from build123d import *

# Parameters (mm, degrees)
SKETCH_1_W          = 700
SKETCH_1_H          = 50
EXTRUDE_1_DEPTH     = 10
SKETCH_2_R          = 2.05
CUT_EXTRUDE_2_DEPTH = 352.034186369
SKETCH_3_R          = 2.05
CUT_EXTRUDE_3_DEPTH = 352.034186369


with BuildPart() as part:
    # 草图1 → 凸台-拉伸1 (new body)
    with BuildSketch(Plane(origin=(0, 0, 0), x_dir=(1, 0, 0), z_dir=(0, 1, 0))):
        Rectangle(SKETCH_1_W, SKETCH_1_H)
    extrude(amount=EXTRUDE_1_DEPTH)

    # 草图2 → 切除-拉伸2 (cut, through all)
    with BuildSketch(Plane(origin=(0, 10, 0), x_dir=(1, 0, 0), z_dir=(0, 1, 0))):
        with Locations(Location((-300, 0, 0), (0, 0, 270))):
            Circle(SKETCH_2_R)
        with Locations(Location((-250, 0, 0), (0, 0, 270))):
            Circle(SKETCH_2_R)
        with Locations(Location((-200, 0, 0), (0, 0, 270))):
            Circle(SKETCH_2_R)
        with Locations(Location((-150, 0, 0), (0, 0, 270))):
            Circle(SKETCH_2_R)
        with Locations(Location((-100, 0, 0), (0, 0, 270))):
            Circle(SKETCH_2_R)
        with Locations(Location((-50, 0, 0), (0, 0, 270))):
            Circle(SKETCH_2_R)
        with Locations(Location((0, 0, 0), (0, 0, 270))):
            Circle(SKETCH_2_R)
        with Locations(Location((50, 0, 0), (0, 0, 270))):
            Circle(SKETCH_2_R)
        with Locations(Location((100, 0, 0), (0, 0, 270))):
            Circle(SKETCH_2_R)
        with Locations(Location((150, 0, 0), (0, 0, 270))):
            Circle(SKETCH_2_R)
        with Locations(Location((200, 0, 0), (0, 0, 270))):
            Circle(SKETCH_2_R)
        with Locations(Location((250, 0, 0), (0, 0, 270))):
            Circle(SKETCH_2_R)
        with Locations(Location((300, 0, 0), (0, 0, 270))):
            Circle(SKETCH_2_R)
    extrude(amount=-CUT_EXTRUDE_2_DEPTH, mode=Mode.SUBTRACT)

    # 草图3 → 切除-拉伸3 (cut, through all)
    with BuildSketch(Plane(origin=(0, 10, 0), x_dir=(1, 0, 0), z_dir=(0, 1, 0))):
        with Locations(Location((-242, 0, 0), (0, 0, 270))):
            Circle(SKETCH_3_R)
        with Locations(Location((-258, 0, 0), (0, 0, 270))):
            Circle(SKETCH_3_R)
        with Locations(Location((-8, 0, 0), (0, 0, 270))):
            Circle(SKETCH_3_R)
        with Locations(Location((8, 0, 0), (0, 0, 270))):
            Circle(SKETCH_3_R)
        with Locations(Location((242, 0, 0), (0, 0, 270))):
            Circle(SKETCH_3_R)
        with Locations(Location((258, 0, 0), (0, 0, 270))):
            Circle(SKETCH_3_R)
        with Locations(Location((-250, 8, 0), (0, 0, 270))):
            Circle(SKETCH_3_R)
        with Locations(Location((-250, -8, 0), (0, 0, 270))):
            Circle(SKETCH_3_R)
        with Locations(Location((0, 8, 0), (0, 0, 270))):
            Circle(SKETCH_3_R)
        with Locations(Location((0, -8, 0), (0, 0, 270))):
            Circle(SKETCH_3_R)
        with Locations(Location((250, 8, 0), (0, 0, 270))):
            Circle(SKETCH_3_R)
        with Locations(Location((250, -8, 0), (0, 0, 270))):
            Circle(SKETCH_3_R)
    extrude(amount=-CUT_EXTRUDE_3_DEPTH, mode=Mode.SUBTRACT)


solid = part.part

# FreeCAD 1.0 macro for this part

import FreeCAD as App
import Part
import Sketcher


def add_polygon(sketch, points):
    """Adds a closed chain of lines whose ends are joined by coincident constraints."""
    first, n = sketch.GeometryCount, len(points)
    for a, b in zip(points, points[1:] + points[:1]):
        sketch.addGeometry(Part.LineSegment(App.Vector(*a, 0), App.Vector(*b, 0)), False)
    for i in range(n):
        sketch.addConstraint(Sketcher.Constraint("Coincident", first + i, 2, first + (i + 1) % n, 1))

doc = App.newDocument("Part")
body = doc.addObject("PartDesign::Body", "Body")

sketch1 = body.newObject("Sketcher::SketchObject", "Sketch")
sketch1.AttachmentSupport = (doc.getObject("XZ_Plane"), [""])
sketch1.MapMode = "FlatFace"
add_polygon(sketch1, [(-350, -25), (-350, 25), (350, 25), (350, -25)])
sketch1.addConstraint([
    Sketcher.Constraint("Vertical", 0),
    Sketcher.Constraint("Horizontal", 1),
    Sketcher.Constraint("Vertical", 2),
    Sketcher.Constraint("Horizontal", 3),
    Sketcher.Constraint("Symmetric", 0, 2, 2, 2, -1, 1),
    Sketcher.Constraint("DistanceX", 1, 1, 1, 2, 700.0),
    Sketcher.Constraint("DistanceY", 0, 1, 0, 2, 50.0),
])
pad1 = body.newObject("PartDesign::Pad", "Pad")
pad1.Profile = sketch1
pad1.Length = 10
pad1.Reversed = True

sketch2 = body.newObject("Sketcher::SketchObject", "Sketch001")
sketch2.AttachmentSupport = (doc.getObject("XZ_Plane"), [""])
sketch2.MapMode = "FlatFace"
sketch2.AttachmentOffset = App.Placement(App.Vector(0, 0, -10), App.Rotation())
sketch2.addGeometry([
    Part.Circle(App.Vector(-300, 0, 0), App.Vector(0, 0, 1), 2),
    Part.Circle(App.Vector(-250, 0, 0), App.Vector(0, 0, 1), 2),
    Part.Circle(App.Vector(-200, 0, 0), App.Vector(0, 0, 1), 2),
    Part.Circle(App.Vector(-150, 0, 0), App.Vector(0, 0, 1), 2),
    Part.Circle(App.Vector(-100, 0, 0), App.Vector(0, 0, 1), 2),
    Part.Circle(App.Vector(-50, 0, 0), App.Vector(0, 0, 1), 2),
    Part.Circle(App.Vector(0, 0, 0), App.Vector(0, 0, 1), 2),
    Part.Circle(App.Vector(50, 0, 0), App.Vector(0, 0, 1), 2),
    Part.Circle(App.Vector(100, 0, 0), App.Vector(0, 0, 1), 2),
    Part.Circle(App.Vector(150, 0, 0), App.Vector(0, 0, 1), 2),
    Part.Circle(App.Vector(200, 0, 0), App.Vector(0, 0, 1), 2),
    Part.Circle(App.Vector(250, 0, 0), App.Vector(0, 0, 1), 2),
    Part.Circle(App.Vector(300, 0, 0), App.Vector(0, 0, 1), 2),
], False)
sketch2.addConstraint([
    Sketcher.Constraint("Coincident", 6, 3, -1, 1),
    Sketcher.Constraint("Equal", 0, 1),
    Sketcher.Constraint("Equal", 1, 2),
    Sketcher.Constraint("Equal", 2, 3),
    Sketcher.Constraint("Equal", 3, 4),
    Sketcher.Constraint("Equal", 4, 5),
    Sketcher.Constraint("Equal", 5, 6),
    Sketcher.Constraint("Equal", 6, 7),
    Sketcher.Constraint("Equal", 7, 8),
    Sketcher.Constraint("Equal", 8, 9),
    Sketcher.Constraint("Equal", 9, 10),
    Sketcher.Constraint("Equal", 10, 11),
    Sketcher.Constraint("Equal", 11, 12),
    Sketcher.Constraint("Symmetric", 5, 3, 7, 3, -1, 1),
    Sketcher.Constraint("Symmetric", 4, 3, 8, 3, -1, 1),
    Sketcher.Constraint("Symmetric", 3, 3, 9, 3, -1, 1),
    Sketcher.Constraint("Symmetric", 2, 3, 10, 3, -1, 1),
    Sketcher.Constraint("Symmetric", 1, 3, 11, 3, -1, 1),
    Sketcher.Constraint("Symmetric", 0, 3, 12, 3, -1, 1),
    Sketcher.Constraint("PointOnObject", 0, 3, -1),
    Sketcher.Constraint("PointOnObject", 1, 3, -1),
    Sketcher.Constraint("PointOnObject", 2, 3, -1),
    Sketcher.Constraint("PointOnObject", 3, 3, -1),
    Sketcher.Constraint("PointOnObject", 4, 3, -1),
    Sketcher.Constraint("PointOnObject", 5, 3, -1),
    Sketcher.Constraint("Diameter", 0, 4.1),
    Sketcher.Constraint("DistanceX", 0, 3, -1, 1, 300.0),
    Sketcher.Constraint("DistanceX", 1, 3, -1, 1, 250.0),
    Sketcher.Constraint("DistanceX", 2, 3, -1, 1, 200.0),
    Sketcher.Constraint("DistanceX", 3, 3, -1, 1, 150.0),
    Sketcher.Constraint("DistanceX", 4, 3, -1, 1, 100.0),
    Sketcher.Constraint("DistanceX", 5, 3, -1, 1, 50.0),
])
pocket1 = body.newObject("PartDesign::Pocket", "Pocket")
pocket1.Profile = sketch2
pocket1.Type = "ThroughAll"
pocket1.Reversed = True

sketch3 = body.newObject("Sketcher::SketchObject", "Sketch002")
sketch3.AttachmentSupport = (doc.getObject("XZ_Plane"), [""])
sketch3.MapMode = "FlatFace"
sketch3.AttachmentOffset = App.Placement(App.Vector(0, 0, -10), App.Rotation())
sketch3.addGeometry([
    Part.Circle(App.Vector(-242, 0, 0), App.Vector(0, 0, 1), 2),
    Part.Circle(App.Vector(-258, 0, 0), App.Vector(0, 0, 1), 2),
    Part.Circle(App.Vector(-8, 0, 0), App.Vector(0, 0, 1), 2),
    Part.Circle(App.Vector(8, 0, 0), App.Vector(0, 0, 1), 2),
    Part.Circle(App.Vector(242, 0, 0), App.Vector(0, 0, 1), 2),
    Part.Circle(App.Vector(258, 0, 0), App.Vector(0, 0, 1), 2),
    Part.Circle(App.Vector(-250, -8, 0), App.Vector(0, 0, 1), 2),
    Part.Circle(App.Vector(-250, 8, 0), App.Vector(0, 0, 1), 2),
    Part.Circle(App.Vector(0, -8, 0), App.Vector(0, 0, 1), 2),
    Part.Circle(App.Vector(0, 8, 0), App.Vector(0, 0, 1), 2),
    Part.Circle(App.Vector(250, -8, 0), App.Vector(0, 0, 1), 2),
    Part.Circle(App.Vector(250, 8, 0), App.Vector(0, 0, 1), 2),
], False)
sketch3.addConstraint([
    Sketcher.Constraint("Equal", 0, 1),
    Sketcher.Constraint("Equal", 1, 2),
    Sketcher.Constraint("Equal", 2, 3),
    Sketcher.Constraint("Equal", 3, 4),
    Sketcher.Constraint("Equal", 4, 5),
    Sketcher.Constraint("Equal", 5, 6),
    Sketcher.Constraint("Equal", 6, 7),
    Sketcher.Constraint("Equal", 7, 8),
    Sketcher.Constraint("Equal", 8, 9),
    Sketcher.Constraint("Equal", 9, 10),
    Sketcher.Constraint("Equal", 10, 11),
    Sketcher.Constraint("Symmetric", 2, 3, 3, 3, -1, 1),
    Sketcher.Constraint("Symmetric", 0, 3, 4, 3, -1, 1),
    Sketcher.Constraint("Symmetric", 1, 3, 5, 3, -1, 1),
    Sketcher.Constraint("Symmetric", 8, 3, 9, 3, -1, 1),
    Sketcher.Constraint("Symmetric", 7, 3, 10, 3, -1, 1),
    Sketcher.Constraint("Symmetric", 6, 3, 11, 3, -1, 1),
    Sketcher.Constraint("Symmetric", 6, 3, 10, 3, -2),
    Sketcher.Constraint("PointOnObject", 0, 3, -1),
    Sketcher.Constraint("PointOnObject", 1, 3, -1),
    Sketcher.Constraint("PointOnObject", 2, 3, -1),
    Sketcher.Constraint("PointOnObject", 8, 3, -2),
    Sketcher.Constraint("Horizontal", 6, 3, 8, 3),
    Sketcher.Constraint("Diameter", 0, 4.1),
    Sketcher.Constraint("DistanceX", 0, 3, -1, 1, 242.0),
    Sketcher.Constraint("DistanceX", 1, 3, -1, 1, 258.0),
    Sketcher.Constraint("DistanceX", 2, 3, -1, 1, 8.0),
    Sketcher.Constraint("DistanceX", 6, 3, -1, 1, 250.0),
    Sketcher.Constraint("DistanceY", 6, 3, -1, 1, 8.0),
])
pocket2 = body.newObject("PartDesign::Pocket", "Pocket001")
pocket2.Profile = sketch3
pocket2.Type = "ThroughAll"
pocket2.Reversed = True

doc.recompute()
